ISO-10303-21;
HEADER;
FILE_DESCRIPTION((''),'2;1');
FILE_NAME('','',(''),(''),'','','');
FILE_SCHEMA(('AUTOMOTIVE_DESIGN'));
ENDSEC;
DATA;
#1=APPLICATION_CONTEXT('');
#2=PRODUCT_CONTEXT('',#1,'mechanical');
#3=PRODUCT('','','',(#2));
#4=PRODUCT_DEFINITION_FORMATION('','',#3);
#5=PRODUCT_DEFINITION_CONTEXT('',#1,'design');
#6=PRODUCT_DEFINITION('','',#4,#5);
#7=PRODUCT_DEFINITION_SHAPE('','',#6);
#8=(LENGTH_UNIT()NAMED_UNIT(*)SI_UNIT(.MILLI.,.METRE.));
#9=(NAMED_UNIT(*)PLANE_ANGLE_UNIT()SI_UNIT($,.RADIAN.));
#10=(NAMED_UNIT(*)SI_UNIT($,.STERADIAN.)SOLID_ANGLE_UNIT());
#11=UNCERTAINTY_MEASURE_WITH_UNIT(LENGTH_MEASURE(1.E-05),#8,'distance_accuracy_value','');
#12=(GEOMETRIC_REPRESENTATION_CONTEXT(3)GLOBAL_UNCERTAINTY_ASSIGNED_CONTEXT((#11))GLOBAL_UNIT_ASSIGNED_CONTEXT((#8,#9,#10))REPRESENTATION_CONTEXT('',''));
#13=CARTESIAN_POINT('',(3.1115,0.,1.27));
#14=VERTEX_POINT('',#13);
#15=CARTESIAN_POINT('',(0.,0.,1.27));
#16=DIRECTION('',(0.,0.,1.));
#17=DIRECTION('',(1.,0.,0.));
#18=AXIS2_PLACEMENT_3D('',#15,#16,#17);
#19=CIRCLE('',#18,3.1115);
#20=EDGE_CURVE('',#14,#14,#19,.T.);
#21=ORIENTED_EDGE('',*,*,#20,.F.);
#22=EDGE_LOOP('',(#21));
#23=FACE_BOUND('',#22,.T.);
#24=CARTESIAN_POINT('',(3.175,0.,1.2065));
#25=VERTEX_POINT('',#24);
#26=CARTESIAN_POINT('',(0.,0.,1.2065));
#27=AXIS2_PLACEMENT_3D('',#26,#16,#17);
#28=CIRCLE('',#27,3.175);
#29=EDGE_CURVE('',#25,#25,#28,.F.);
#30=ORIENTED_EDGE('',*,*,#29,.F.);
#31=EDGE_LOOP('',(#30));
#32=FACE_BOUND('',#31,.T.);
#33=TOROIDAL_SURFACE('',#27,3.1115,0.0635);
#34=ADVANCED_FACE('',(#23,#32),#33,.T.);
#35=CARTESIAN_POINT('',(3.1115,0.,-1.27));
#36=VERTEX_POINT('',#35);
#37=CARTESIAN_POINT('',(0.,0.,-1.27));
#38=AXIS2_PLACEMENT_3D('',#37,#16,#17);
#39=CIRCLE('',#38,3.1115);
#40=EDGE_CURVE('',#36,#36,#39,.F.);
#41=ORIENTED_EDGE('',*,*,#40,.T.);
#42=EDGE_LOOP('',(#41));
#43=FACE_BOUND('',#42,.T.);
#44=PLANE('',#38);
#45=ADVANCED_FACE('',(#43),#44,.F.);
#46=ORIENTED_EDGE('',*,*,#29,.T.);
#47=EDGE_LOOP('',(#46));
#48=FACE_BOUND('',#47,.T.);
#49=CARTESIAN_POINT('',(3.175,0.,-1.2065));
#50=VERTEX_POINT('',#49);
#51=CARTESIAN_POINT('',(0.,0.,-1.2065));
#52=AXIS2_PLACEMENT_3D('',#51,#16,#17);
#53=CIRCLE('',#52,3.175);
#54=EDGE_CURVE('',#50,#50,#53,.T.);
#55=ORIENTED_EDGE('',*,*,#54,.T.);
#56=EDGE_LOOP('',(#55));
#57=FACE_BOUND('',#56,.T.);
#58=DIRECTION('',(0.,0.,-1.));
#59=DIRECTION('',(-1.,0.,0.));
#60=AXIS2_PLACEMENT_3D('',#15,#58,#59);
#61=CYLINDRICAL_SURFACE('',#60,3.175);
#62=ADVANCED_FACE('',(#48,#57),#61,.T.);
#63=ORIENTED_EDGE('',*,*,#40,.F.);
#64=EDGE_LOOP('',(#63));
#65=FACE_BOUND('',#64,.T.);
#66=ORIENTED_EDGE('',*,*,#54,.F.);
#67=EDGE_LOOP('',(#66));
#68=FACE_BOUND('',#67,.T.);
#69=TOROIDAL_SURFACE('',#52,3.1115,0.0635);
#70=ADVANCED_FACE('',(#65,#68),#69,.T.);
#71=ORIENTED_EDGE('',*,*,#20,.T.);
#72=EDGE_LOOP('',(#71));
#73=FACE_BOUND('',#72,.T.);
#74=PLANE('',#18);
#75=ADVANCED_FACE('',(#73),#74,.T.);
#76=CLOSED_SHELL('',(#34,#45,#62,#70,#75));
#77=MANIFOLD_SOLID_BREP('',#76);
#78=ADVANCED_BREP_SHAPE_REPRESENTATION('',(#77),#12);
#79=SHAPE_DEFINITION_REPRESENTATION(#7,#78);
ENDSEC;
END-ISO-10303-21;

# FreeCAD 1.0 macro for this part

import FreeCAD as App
import Part
import Sketcher

V = App.Vector
Q = App.Units.Quantity


def edges_at(feature, points):
    """Names of the edges that pass closest to the given points."""
    edges = feature.Shape.Edges
    near = lambda p: min(range(len(edges)), key=lambda i: edges[i].distToShape(Part.Vertex(*p))[0])
    return sorted({f"Edge{near(p) + 1}" for p in points})

doc = App.newDocument("Part")
body = doc.addObject("PartDesign::Body", "Body")

# Sketch on XY plane
sketch1 = doc.addObject("Sketcher::SketchObject", "Sketch")
body.addObject(sketch1)
sketch1.AttachmentSupport = (doc.XY_Plane, [""])
sketch1.MapMode = "FlatFace"
sketch1.addGeometry(Part.Circle(V(0, 0, 0), V(0, 0, 1), 3.2), False)
sketch1.addConstraint(Sketcher.Constraint("Coincident", 0, 3, -1, 1))
sketch1.addConstraint(Sketcher.Constraint("Diameter", 0, Q("0.25 in")))
pad1 = doc.addObject("PartDesign::Pad", "Pad")
body.addObject(pad1)
pad1.Profile = sketch1
pad1.Type = "TwoLengths"
pad1.Length = Q("0.05 in")
pad1.Length2 = Q("0.05 in")
doc.recompute()

fillet = doc.addObject("PartDesign::Fillet", "Fillet")
body.addObject(fillet)
fillet.Base = (pad1, edges_at(pad1, [(-3.175, 0, -1.27), (-3.175, 0, 1.27)]))
fillet.Radius = Q("0.0025 in")

doc.recompute()
